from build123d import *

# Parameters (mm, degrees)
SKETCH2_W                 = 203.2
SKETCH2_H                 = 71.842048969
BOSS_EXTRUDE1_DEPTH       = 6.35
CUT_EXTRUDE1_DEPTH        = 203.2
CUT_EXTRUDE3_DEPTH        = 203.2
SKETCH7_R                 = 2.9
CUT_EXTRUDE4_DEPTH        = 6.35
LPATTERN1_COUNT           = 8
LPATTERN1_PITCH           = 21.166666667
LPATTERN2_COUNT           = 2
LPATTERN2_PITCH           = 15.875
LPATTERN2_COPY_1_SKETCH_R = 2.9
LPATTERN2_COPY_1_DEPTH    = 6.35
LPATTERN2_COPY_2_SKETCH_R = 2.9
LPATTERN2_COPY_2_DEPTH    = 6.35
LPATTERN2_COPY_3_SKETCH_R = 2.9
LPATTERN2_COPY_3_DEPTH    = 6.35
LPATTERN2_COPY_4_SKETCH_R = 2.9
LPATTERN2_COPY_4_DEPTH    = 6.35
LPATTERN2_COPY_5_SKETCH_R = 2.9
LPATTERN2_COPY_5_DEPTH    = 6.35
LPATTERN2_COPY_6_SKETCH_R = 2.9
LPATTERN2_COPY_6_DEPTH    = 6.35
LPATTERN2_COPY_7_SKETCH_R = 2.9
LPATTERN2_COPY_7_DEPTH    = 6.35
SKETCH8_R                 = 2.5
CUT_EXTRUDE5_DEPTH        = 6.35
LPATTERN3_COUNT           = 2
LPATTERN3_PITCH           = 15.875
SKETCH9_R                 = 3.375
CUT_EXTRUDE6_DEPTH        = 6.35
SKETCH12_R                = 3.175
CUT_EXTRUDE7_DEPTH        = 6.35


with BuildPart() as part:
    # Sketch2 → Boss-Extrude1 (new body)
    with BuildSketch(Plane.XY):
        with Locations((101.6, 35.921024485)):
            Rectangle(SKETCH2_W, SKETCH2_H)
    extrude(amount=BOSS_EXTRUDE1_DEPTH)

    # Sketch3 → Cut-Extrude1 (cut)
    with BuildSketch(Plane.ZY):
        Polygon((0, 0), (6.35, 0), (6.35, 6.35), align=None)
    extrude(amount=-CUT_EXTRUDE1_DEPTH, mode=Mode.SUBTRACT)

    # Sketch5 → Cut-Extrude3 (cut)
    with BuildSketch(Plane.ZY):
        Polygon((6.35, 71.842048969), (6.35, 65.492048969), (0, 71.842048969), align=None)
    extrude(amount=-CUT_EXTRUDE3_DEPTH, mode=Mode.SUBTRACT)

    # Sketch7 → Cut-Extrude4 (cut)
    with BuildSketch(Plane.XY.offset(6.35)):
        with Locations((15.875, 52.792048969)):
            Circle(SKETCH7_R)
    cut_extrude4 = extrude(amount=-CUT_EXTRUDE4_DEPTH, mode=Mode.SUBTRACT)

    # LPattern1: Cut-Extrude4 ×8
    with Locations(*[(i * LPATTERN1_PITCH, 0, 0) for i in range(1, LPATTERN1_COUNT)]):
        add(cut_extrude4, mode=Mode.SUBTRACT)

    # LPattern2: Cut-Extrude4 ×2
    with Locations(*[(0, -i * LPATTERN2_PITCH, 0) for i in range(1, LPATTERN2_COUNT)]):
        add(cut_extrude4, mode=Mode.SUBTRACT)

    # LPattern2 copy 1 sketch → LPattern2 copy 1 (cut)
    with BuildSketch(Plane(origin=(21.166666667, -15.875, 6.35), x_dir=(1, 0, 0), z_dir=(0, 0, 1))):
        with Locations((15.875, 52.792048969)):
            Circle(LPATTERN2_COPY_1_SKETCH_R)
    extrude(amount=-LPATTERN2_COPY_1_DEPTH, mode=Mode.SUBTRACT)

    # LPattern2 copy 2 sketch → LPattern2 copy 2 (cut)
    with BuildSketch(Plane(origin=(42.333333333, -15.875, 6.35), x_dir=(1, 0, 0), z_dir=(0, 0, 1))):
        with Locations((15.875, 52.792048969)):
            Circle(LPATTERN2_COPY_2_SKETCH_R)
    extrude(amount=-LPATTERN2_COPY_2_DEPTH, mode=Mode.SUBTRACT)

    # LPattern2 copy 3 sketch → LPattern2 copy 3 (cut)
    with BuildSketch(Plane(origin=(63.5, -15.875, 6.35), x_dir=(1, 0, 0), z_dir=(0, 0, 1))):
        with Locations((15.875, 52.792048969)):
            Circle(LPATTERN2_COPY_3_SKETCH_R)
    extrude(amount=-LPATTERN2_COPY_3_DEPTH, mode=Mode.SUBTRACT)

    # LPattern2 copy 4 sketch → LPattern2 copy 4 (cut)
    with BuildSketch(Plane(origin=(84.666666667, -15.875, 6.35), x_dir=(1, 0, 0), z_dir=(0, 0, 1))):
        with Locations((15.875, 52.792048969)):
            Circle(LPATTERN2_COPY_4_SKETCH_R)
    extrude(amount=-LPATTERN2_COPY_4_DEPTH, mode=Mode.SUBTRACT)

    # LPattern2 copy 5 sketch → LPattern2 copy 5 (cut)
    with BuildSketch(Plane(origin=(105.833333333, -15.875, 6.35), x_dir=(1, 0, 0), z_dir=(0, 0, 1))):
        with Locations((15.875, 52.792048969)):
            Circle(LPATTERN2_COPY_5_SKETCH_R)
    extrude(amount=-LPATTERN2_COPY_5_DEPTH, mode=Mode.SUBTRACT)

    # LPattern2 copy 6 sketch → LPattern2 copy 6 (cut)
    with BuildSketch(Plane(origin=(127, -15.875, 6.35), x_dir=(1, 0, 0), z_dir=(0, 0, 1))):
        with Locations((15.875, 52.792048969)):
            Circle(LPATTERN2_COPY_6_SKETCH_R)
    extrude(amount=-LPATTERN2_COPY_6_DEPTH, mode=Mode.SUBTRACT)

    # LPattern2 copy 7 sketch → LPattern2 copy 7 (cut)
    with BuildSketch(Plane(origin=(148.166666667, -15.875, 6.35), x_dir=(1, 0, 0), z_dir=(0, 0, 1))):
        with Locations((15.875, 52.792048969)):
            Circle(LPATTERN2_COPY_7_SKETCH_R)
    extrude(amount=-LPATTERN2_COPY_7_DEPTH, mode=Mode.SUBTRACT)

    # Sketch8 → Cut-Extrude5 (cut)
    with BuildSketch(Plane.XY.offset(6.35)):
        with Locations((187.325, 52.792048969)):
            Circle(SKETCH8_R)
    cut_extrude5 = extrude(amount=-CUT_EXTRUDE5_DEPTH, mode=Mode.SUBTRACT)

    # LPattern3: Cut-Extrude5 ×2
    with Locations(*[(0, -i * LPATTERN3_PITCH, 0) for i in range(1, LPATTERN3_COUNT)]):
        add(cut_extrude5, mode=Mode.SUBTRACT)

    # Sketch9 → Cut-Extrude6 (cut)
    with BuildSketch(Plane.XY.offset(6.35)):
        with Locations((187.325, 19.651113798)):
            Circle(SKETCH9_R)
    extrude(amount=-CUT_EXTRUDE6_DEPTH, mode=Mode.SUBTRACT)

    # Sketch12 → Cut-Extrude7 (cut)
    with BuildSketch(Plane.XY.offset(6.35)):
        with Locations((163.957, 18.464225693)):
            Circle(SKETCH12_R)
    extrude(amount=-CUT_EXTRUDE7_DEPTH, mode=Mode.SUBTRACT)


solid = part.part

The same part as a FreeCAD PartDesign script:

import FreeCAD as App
import Part
import Sketcher
Q = App.Units.Quantity


def add_polygon(sketch, points):
    """Adds a closed chain of lines whose ends are joined by coincident constraints."""
    first, n = sketch.GeometryCount, len(points)
    for a, b in zip(points, points[1:] + points[:1]):
        sketch.addGeometry(Part.LineSegment(App.Vector(*a, 0), App.Vector(*b, 0)), False)
    for i in range(n):
        sketch.addConstraint(Sketcher.Constraint("Coincident", first + i, 2, first + (i + 1) % n, 1))

doc = App.newDocument("Part")
body = doc.addObject("PartDesign::Body", "Body")

# Sketch on XY plane
sketch1 = body.newObject("Sketcher::SketchObject", "Sketch")
sketch1.AttachmentSupport = (doc.getObject("XY_Plane"), [""])
sketch1.MapMode = "FlatFace"
add_polygon(sketch1, [(0, 72), (0, 0), (203, 0), (203, 72)])  # lines 0-3
sketch1.addConstraint(Sketcher.Constraint("Vertical", 0))
sketch1.addConstraint(Sketcher.Constraint("Horizontal", 1))
sketch1.addConstraint(Sketcher.Constraint("Vertical", 2))
sketch1.addConstraint(Sketcher.Constraint("Horizontal", 3))
sketch1.addConstraint(Sketcher.Constraint("Coincident", 0, 2, -1, 1))
sketch1.addConstraint(Sketcher.Constraint("DistanceX", 1, 1, 1, 2, Q("203.2 mm")))
sketch1.addConstraint(Sketcher.Constraint("DistanceY", 0, 2, 0, 1, Q("71.842049 mm")))
pad1 = body.newObject("PartDesign::Pad", "Pad")
pad1.Profile = sketch1
pad1.Length = 6.35

# Sketch on YZ plane
sketch2 = body.newObject("Sketcher::SketchObject", "Sketch001")
sketch2.AttachmentSupport = (doc.getObject("YZ_Plane"), [""])
sketch2.MapMode = "FlatFace"
add_polygon(sketch2, [(0, 0), (0, 6), (6, 6)])  # lines 0-2
sketch2.addConstraint(Sketcher.Constraint("Vertical", 0))
sketch2.addConstraint(Sketcher.Constraint("Horizontal", 1))
sketch2.addConstraint(Sketcher.Constraint("Coincident", 2, 2, -1, 1))
sketch2.addConstraint(Sketcher.Constraint("Equal", 1, 0))
sketch2.addConstraint(Sketcher.Constraint("DistanceX", 1, 1, 1, 2, Q("6.35 mm")))
pocket1 = body.newObject("PartDesign::Pocket", "Pocket")
pocket1.Profile = sketch2
pocket1.Length = 203.2
pocket1.Reversed = True

# Sketch on YZ plane
sketch3 = body.newObject("Sketcher::SketchObject", "Sketch002")
sketch3.AttachmentSupport = (doc.getObject("YZ_Plane"), [""])
sketch3.MapMode = "FlatFace"
add_polygon(sketch3, [(65, 6), (72, 6), (72, 0)])  # lines 0-2
sketch3.addConstraint(Sketcher.Constraint("Horizontal", 0))
sketch3.addConstraint(Sketcher.Constraint("Vertical", 1))
sketch3.addConstraint(Sketcher.Constraint("PointOnObject", 1, 2, -1))
sketch3.addConstraint(Sketcher.Constraint("Equal", 0, 1))
sketch3.addConstraint(Sketcher.Constraint("DistanceX", 0, 1, 0, 2, Q("6.35 mm")))
sketch3.addConstraint(Sketcher.Constraint("DistanceX", -1, 1, 0, 2, Q("71.842049 mm")))
pocket2 = body.newObject("PartDesign::Pocket", "Pocket001")
pocket2.Profile = sketch3
pocket2.Length = 203.2
pocket2.Reversed = True

# Sketch on XY plane
sketch4 = body.newObject("Sketcher::SketchObject", "Sketch003")
sketch4.AttachmentSupport = (doc.getObject("XY_Plane"), [""])
sketch4.MapMode = "FlatFace"
sketch4.AttachmentOffset = App.Placement(App.Vector(0, 0, 6.35), App.Rotation())
sketch4.addGeometry(Part.Circle(App.Vector(15.9, 52.8, 0), App.Vector(0, 0, 1), 2.9), False)
sketch4.addConstraint(Sketcher.Constraint("Diameter", 0, Q("5.8 mm")))
sketch4.addConstraint(Sketcher.Constraint("DistanceX", -1, 1, 0, 3, Q("15.875 mm")))
sketch4.addConstraint(Sketcher.Constraint("DistanceY", -1, 1, 0, 3, Q("52.792049 mm")))
pocket3 = body.newObject("PartDesign::Pocket", "Pocket002")
pocket3.Profile = sketch4
pocket3.Length = 6.35
doc.recompute()

linearpattern = body.newObject("PartDesign::LinearPattern", "LinearPattern")
linearpattern.Originals = [pocket3]
linearpattern.Direction = (doc.getObject("X_Axis"), [""])
linearpattern.Mode = "offset"
linearpattern.Offset = 21.166667
linearpattern.Occurrences = 8
body.Tip = linearpattern
doc.recompute()

linearpattern2 = body.newObject("PartDesign::LinearPattern", "LinearPattern001")
linearpattern2.Originals = [pocket3]
linearpattern2.Direction = (doc.getObject("Y_Axis"), [""])
linearpattern2.Mode = "offset"
linearpattern2.Offset = 15.875
linearpattern2.Occurrences = 2
linearpattern2.Reversed = True
body.Tip = linearpattern2

# Sketch on XY plane
sketch5 = body.newObject("Sketcher::SketchObject", "Sketch004")
sketch5.AttachmentSupport = (doc.getObject("XY_Plane"), [""])
sketch5.MapMode = "FlatFace"
sketch5.AttachmentOffset = App.Placement(App.Vector(0, 0, 6.35), App.Rotation())
sketch5.addGeometry(Part.Circle(App.Vector(37, 36.9, 0), App.Vector(0, 0, 1), 2.9), False)
sketch5.addConstraint(Sketcher.Constraint("Diameter", 0, Q("5.8 mm")))
sketch5.addConstraint(Sketcher.Constraint("DistanceY", -1, 1, 0, 3, Q("36.917049 mm")))
sketch5.addConstraint(Sketcher.Constraint("DistanceX", -1, 1, 0, 3, Q("37.041667 mm")))
pocket4 = body.newObject("PartDesign::Pocket", "Pocket003")
pocket4.Profile = sketch5
pocket4.Length = 6.35

# Sketch on XY plane
sketch6 = body.newObject("Sketcher::SketchObject", "Sketch005")
sketch6.AttachmentSupport = (doc.getObject("XY_Plane"), [""])
sketch6.MapMode = "FlatFace"
sketch6.AttachmentOffset = App.Placement(App.Vector(0, 0, 6.35), App.Rotation())
sketch6.addGeometry(Part.Circle(App.Vector(58.2, 36.9, 0), App.Vector(0, 0, 1), 2.9), False)
sketch6.addConstraint(Sketcher.Constraint("Diameter", 0, Q("5.8 mm")))
sketch6.addConstraint(Sketcher.Constraint("DistanceY", -1, 1, 0, 3, Q("36.917049 mm")))
sketch6.addConstraint(Sketcher.Constraint("DistanceX", -1, 1, 0, 3, Q("58.208333 mm")))
pocket5 = body.newObject("PartDesign::Pocket", "Pocket004")
pocket5.Profile = sketch6
pocket5.Length = 6.35

# Sketch on XY plane
sketch7 = body.newObject("Sketcher::SketchObject", "Sketch006")
sketch7.AttachmentSupport = (doc.getObject("XY_Plane"), [""])
sketch7.MapMode = "FlatFace"
sketch7.AttachmentOffset = App.Placement(App.Vector(0, 0, 6.35), App.Rotation())
sketch7.addGeometry(Part.Circle(App.Vector(79.4, 36.9, 0), App.Vector(0, 0, 1), 2.9), False)
sketch7.addConstraint(Sketcher.Constraint("Diameter", 0, Q("5.8 mm")))
sketch7.addConstraint(Sketcher.Constraint("DistanceX", -1, 1, 0, 3, Q("79.375 mm")))
sketch7.addConstraint(Sketcher.Constraint("DistanceY", -1, 1, 0, 3, Q("36.917049 mm")))
pocket6 = body.newObject("PartDesign::Pocket", "Pocket005")
pocket6.Profile = sketch7
pocket6.Length = 6.35

# Sketch on XY plane
sketch8 = body.newObject("Sketcher::SketchObject", "Sketch007")
sketch8.AttachmentSupport = (doc.getObject("XY_Plane"), [""])
sketch8.MapMode = "FlatFace"
sketch8.AttachmentOffset = App.Placement(App.Vector(0, 0, 6.35), App.Rotation())
sketch8.addGeometry(Part.Circle(App.Vector(100.5, 36.9, 0), App.Vector(0, 0, 1), 2.9), False)
sketch8.addConstraint(Sketcher.Constraint("Diameter", 0, Q("5.8 mm")))
sketch8.addConstraint(Sketcher.Constraint("DistanceY", -1, 1, 0, 3, Q("36.917049 mm")))
sketch8.addConstraint(Sketcher.Constraint("DistanceX", -1, 1, 0, 3, Q("100.541667 mm")))
pocket7 = body.newObject("PartDesign::Pocket", "Pocket006")
pocket7.Profile = sketch8
pocket7.Length = 6.35

# Sketch on XY plane
sketch9 = body.newObject("Sketcher::SketchObject", "Sketch008")
sketch9.AttachmentSupport = (doc.getObject("XY_Plane"), [""])
sketch9.MapMode = "FlatFace"
sketch9.AttachmentOffset = App.Placement(App.Vector(0, 0, 6.35), App.Rotation())
sketch9.addGeometry(Part.Circle(App.Vector(121.7, 36.9, 0), App.Vector(0, 0, 1), 2.9), False)
sketch9.addConstraint(Sketcher.Constraint("Diameter", 0, Q("5.8 mm")))
sketch9.addConstraint(Sketcher.Constraint("DistanceY", -1, 1, 0, 3, Q("36.917049 mm")))
sketch9.addConstraint(Sketcher.Constraint("DistanceX", -1, 1, 0, 3, Q("121.708333 mm")))
pocket8 = body.newObject("PartDesign::Pocket", "Pocket007")
pocket8.Profile = sketch9
pocket8.Length = 6.35

# Sketch on XY plane
sketch10 = body.newObject("Sketcher::SketchObject", "Sketch009")
sketch10.AttachmentSupport = (doc.getObject("XY_Plane"), [""])
sketch10.MapMode = "FlatFace"
sketch10.AttachmentOffset = App.Placement(App.Vector(0, 0, 6.35), App.Rotation())
sketch10.addGeometry(Part.Circle(App.Vector(142.9, 36.9, 0), App.Vector(0, 0, 1), 2.9), False)
sketch10.addConstraint(Sketcher.Constraint("Diameter", 0, Q("5.8 mm")))
sketch10.addConstraint(Sketcher.Constraint("DistanceX", -1, 1, 0, 3, Q("142.875 mm")))
sketch10.addConstraint(Sketcher.Constraint("DistanceY", -1, 1, 0, 3, Q("36.917049 mm")))
pocket9 = body.newObject("PartDesign::Pocket", "Pocket008")
pocket9.Profile = sketch10
pocket9.Length = 6.35

# Sketch on XY plane
sketch11 = body.newObject("Sketcher::SketchObject", "Sketch010")
sketch11.AttachmentSupport = (doc.getObject("XY_Plane"), [""])
sketch11.MapMode = "FlatFace"
sketch11.AttachmentOffset = App.Placement(App.Vector(0, 0, 6.35), App.Rotation())
sketch11.addGeometry(Part.Circle(App.Vector(164, 36.9, 0), App.Vector(0, 0, 1), 2.9), False)
sketch11.addConstraint(Sketcher.Constraint("Diameter", 0, Q("5.8 mm")))
sketch11.addConstraint(Sketcher.Constraint("DistanceY", -1, 1, 0, 3, Q("36.917049 mm")))
sketch11.addConstraint(Sketcher.Constraint("DistanceX", -1, 1, 0, 3, Q("164.041667 mm")))
pocket10 = body.newObject("PartDesign::Pocket", "Pocket009")
pocket10.Profile = sketch11
pocket10.Length = 6.35

# Sketch on XY plane
sketch12 = body.newObject("Sketcher::SketchObject", "Sketch011")
sketch12.AttachmentSupport = (doc.getObject("XY_Plane"), [""])
sketch12.MapMode = "FlatFace"
sketch12.AttachmentOffset = App.Placement(App.Vector(0, 0, 6.35), App.Rotation())
sketch12.addGeometry(Part.Circle(App.Vector(187.3, 52.8, 0), App.Vector(0, 0, 1), 2.5), False)
sketch12.addConstraint(Sketcher.Constraint("Diameter", 0, Q("5 mm")))
sketch12.addConstraint(Sketcher.Constraint("DistanceX", -1, 1, 0, 3, Q("187.325 mm")))
sketch12.addConstraint(Sketcher.Constraint("DistanceY", -1, 1, 0, 3, Q("52.792049 mm")))
pocket11 = body.newObject("PartDesign::Pocket", "Pocket010")
pocket11.Profile = sketch12
pocket11.Length = 6.35
doc.recompute()

linearpattern3 = body.newObject("PartDesign::LinearPattern", "LinearPattern002")
linearpattern3.Originals = [pocket11]
linearpattern3.Direction = (doc.getObject("Y_Axis"), [""])
linearpattern3.Mode = "offset"
linearpattern3.Offset = 15.875
linearpattern3.Occurrences = 2
linearpattern3.Reversed = True
body.Tip = linearpattern3

# Sketch on XY plane
sketch13 = body.newObject("Sketcher::SketchObject", "Sketch012")
sketch13.AttachmentSupport = (doc.getObject("XY_Plane"), [""])
sketch13.MapMode = "FlatFace"
sketch13.AttachmentOffset = App.Placement(App.Vector(0, 0, 6.35), App.Rotation())
sketch13.addGeometry(Part.Circle(App.Vector(187.3, 19.7, 0), App.Vector(0, 0, 1), 3.4), False)
sketch13.addConstraint(Sketcher.Constraint("Diameter", 0, Q("6.75 mm")))
sketch13.addConstraint(Sketcher.Constraint("DistanceX", -1, 1, 0, 3, Q("187.325 mm")))
sketch13.addConstraint(Sketcher.Constraint("DistanceY", -1, 1, 0, 3, Q("19.651114 mm")))
pocket12 = body.newObject("PartDesign::Pocket", "Pocket011")
pocket12.Profile = sketch13
pocket12.Length = 6.35

# Sketch on XY plane
sketch14 = body.newObject("Sketcher::SketchObject", "Sketch013")
sketch14.AttachmentSupport = (doc.getObject("XY_Plane"), [""])
sketch14.MapMode = "FlatFace"
sketch14.AttachmentOffset = App.Placement(App.Vector(0, 0, 6.35), App.Rotation())
sketch14.addGeometry(Part.Circle(App.Vector(164, 18.5, 0), App.Vector(0, 0, 1), 3.2), False)
sketch14.addConstraint(Sketcher.Constraint("Diameter", 0, Q("6.35 mm")))
sketch14.addConstraint(Sketcher.Constraint("DistanceX", -1, 1, 0, 3, Q("163.957 mm")))
sketch14.addConstraint(Sketcher.Constraint("DistanceY", -1, 1, 0, 3, Q("18.464226 mm")))
pocket13 = body.newObject("PartDesign::Pocket", "Pocket012")
pocket13.Profile = sketch14
pocket13.Length = 6.35

doc.recompute()
